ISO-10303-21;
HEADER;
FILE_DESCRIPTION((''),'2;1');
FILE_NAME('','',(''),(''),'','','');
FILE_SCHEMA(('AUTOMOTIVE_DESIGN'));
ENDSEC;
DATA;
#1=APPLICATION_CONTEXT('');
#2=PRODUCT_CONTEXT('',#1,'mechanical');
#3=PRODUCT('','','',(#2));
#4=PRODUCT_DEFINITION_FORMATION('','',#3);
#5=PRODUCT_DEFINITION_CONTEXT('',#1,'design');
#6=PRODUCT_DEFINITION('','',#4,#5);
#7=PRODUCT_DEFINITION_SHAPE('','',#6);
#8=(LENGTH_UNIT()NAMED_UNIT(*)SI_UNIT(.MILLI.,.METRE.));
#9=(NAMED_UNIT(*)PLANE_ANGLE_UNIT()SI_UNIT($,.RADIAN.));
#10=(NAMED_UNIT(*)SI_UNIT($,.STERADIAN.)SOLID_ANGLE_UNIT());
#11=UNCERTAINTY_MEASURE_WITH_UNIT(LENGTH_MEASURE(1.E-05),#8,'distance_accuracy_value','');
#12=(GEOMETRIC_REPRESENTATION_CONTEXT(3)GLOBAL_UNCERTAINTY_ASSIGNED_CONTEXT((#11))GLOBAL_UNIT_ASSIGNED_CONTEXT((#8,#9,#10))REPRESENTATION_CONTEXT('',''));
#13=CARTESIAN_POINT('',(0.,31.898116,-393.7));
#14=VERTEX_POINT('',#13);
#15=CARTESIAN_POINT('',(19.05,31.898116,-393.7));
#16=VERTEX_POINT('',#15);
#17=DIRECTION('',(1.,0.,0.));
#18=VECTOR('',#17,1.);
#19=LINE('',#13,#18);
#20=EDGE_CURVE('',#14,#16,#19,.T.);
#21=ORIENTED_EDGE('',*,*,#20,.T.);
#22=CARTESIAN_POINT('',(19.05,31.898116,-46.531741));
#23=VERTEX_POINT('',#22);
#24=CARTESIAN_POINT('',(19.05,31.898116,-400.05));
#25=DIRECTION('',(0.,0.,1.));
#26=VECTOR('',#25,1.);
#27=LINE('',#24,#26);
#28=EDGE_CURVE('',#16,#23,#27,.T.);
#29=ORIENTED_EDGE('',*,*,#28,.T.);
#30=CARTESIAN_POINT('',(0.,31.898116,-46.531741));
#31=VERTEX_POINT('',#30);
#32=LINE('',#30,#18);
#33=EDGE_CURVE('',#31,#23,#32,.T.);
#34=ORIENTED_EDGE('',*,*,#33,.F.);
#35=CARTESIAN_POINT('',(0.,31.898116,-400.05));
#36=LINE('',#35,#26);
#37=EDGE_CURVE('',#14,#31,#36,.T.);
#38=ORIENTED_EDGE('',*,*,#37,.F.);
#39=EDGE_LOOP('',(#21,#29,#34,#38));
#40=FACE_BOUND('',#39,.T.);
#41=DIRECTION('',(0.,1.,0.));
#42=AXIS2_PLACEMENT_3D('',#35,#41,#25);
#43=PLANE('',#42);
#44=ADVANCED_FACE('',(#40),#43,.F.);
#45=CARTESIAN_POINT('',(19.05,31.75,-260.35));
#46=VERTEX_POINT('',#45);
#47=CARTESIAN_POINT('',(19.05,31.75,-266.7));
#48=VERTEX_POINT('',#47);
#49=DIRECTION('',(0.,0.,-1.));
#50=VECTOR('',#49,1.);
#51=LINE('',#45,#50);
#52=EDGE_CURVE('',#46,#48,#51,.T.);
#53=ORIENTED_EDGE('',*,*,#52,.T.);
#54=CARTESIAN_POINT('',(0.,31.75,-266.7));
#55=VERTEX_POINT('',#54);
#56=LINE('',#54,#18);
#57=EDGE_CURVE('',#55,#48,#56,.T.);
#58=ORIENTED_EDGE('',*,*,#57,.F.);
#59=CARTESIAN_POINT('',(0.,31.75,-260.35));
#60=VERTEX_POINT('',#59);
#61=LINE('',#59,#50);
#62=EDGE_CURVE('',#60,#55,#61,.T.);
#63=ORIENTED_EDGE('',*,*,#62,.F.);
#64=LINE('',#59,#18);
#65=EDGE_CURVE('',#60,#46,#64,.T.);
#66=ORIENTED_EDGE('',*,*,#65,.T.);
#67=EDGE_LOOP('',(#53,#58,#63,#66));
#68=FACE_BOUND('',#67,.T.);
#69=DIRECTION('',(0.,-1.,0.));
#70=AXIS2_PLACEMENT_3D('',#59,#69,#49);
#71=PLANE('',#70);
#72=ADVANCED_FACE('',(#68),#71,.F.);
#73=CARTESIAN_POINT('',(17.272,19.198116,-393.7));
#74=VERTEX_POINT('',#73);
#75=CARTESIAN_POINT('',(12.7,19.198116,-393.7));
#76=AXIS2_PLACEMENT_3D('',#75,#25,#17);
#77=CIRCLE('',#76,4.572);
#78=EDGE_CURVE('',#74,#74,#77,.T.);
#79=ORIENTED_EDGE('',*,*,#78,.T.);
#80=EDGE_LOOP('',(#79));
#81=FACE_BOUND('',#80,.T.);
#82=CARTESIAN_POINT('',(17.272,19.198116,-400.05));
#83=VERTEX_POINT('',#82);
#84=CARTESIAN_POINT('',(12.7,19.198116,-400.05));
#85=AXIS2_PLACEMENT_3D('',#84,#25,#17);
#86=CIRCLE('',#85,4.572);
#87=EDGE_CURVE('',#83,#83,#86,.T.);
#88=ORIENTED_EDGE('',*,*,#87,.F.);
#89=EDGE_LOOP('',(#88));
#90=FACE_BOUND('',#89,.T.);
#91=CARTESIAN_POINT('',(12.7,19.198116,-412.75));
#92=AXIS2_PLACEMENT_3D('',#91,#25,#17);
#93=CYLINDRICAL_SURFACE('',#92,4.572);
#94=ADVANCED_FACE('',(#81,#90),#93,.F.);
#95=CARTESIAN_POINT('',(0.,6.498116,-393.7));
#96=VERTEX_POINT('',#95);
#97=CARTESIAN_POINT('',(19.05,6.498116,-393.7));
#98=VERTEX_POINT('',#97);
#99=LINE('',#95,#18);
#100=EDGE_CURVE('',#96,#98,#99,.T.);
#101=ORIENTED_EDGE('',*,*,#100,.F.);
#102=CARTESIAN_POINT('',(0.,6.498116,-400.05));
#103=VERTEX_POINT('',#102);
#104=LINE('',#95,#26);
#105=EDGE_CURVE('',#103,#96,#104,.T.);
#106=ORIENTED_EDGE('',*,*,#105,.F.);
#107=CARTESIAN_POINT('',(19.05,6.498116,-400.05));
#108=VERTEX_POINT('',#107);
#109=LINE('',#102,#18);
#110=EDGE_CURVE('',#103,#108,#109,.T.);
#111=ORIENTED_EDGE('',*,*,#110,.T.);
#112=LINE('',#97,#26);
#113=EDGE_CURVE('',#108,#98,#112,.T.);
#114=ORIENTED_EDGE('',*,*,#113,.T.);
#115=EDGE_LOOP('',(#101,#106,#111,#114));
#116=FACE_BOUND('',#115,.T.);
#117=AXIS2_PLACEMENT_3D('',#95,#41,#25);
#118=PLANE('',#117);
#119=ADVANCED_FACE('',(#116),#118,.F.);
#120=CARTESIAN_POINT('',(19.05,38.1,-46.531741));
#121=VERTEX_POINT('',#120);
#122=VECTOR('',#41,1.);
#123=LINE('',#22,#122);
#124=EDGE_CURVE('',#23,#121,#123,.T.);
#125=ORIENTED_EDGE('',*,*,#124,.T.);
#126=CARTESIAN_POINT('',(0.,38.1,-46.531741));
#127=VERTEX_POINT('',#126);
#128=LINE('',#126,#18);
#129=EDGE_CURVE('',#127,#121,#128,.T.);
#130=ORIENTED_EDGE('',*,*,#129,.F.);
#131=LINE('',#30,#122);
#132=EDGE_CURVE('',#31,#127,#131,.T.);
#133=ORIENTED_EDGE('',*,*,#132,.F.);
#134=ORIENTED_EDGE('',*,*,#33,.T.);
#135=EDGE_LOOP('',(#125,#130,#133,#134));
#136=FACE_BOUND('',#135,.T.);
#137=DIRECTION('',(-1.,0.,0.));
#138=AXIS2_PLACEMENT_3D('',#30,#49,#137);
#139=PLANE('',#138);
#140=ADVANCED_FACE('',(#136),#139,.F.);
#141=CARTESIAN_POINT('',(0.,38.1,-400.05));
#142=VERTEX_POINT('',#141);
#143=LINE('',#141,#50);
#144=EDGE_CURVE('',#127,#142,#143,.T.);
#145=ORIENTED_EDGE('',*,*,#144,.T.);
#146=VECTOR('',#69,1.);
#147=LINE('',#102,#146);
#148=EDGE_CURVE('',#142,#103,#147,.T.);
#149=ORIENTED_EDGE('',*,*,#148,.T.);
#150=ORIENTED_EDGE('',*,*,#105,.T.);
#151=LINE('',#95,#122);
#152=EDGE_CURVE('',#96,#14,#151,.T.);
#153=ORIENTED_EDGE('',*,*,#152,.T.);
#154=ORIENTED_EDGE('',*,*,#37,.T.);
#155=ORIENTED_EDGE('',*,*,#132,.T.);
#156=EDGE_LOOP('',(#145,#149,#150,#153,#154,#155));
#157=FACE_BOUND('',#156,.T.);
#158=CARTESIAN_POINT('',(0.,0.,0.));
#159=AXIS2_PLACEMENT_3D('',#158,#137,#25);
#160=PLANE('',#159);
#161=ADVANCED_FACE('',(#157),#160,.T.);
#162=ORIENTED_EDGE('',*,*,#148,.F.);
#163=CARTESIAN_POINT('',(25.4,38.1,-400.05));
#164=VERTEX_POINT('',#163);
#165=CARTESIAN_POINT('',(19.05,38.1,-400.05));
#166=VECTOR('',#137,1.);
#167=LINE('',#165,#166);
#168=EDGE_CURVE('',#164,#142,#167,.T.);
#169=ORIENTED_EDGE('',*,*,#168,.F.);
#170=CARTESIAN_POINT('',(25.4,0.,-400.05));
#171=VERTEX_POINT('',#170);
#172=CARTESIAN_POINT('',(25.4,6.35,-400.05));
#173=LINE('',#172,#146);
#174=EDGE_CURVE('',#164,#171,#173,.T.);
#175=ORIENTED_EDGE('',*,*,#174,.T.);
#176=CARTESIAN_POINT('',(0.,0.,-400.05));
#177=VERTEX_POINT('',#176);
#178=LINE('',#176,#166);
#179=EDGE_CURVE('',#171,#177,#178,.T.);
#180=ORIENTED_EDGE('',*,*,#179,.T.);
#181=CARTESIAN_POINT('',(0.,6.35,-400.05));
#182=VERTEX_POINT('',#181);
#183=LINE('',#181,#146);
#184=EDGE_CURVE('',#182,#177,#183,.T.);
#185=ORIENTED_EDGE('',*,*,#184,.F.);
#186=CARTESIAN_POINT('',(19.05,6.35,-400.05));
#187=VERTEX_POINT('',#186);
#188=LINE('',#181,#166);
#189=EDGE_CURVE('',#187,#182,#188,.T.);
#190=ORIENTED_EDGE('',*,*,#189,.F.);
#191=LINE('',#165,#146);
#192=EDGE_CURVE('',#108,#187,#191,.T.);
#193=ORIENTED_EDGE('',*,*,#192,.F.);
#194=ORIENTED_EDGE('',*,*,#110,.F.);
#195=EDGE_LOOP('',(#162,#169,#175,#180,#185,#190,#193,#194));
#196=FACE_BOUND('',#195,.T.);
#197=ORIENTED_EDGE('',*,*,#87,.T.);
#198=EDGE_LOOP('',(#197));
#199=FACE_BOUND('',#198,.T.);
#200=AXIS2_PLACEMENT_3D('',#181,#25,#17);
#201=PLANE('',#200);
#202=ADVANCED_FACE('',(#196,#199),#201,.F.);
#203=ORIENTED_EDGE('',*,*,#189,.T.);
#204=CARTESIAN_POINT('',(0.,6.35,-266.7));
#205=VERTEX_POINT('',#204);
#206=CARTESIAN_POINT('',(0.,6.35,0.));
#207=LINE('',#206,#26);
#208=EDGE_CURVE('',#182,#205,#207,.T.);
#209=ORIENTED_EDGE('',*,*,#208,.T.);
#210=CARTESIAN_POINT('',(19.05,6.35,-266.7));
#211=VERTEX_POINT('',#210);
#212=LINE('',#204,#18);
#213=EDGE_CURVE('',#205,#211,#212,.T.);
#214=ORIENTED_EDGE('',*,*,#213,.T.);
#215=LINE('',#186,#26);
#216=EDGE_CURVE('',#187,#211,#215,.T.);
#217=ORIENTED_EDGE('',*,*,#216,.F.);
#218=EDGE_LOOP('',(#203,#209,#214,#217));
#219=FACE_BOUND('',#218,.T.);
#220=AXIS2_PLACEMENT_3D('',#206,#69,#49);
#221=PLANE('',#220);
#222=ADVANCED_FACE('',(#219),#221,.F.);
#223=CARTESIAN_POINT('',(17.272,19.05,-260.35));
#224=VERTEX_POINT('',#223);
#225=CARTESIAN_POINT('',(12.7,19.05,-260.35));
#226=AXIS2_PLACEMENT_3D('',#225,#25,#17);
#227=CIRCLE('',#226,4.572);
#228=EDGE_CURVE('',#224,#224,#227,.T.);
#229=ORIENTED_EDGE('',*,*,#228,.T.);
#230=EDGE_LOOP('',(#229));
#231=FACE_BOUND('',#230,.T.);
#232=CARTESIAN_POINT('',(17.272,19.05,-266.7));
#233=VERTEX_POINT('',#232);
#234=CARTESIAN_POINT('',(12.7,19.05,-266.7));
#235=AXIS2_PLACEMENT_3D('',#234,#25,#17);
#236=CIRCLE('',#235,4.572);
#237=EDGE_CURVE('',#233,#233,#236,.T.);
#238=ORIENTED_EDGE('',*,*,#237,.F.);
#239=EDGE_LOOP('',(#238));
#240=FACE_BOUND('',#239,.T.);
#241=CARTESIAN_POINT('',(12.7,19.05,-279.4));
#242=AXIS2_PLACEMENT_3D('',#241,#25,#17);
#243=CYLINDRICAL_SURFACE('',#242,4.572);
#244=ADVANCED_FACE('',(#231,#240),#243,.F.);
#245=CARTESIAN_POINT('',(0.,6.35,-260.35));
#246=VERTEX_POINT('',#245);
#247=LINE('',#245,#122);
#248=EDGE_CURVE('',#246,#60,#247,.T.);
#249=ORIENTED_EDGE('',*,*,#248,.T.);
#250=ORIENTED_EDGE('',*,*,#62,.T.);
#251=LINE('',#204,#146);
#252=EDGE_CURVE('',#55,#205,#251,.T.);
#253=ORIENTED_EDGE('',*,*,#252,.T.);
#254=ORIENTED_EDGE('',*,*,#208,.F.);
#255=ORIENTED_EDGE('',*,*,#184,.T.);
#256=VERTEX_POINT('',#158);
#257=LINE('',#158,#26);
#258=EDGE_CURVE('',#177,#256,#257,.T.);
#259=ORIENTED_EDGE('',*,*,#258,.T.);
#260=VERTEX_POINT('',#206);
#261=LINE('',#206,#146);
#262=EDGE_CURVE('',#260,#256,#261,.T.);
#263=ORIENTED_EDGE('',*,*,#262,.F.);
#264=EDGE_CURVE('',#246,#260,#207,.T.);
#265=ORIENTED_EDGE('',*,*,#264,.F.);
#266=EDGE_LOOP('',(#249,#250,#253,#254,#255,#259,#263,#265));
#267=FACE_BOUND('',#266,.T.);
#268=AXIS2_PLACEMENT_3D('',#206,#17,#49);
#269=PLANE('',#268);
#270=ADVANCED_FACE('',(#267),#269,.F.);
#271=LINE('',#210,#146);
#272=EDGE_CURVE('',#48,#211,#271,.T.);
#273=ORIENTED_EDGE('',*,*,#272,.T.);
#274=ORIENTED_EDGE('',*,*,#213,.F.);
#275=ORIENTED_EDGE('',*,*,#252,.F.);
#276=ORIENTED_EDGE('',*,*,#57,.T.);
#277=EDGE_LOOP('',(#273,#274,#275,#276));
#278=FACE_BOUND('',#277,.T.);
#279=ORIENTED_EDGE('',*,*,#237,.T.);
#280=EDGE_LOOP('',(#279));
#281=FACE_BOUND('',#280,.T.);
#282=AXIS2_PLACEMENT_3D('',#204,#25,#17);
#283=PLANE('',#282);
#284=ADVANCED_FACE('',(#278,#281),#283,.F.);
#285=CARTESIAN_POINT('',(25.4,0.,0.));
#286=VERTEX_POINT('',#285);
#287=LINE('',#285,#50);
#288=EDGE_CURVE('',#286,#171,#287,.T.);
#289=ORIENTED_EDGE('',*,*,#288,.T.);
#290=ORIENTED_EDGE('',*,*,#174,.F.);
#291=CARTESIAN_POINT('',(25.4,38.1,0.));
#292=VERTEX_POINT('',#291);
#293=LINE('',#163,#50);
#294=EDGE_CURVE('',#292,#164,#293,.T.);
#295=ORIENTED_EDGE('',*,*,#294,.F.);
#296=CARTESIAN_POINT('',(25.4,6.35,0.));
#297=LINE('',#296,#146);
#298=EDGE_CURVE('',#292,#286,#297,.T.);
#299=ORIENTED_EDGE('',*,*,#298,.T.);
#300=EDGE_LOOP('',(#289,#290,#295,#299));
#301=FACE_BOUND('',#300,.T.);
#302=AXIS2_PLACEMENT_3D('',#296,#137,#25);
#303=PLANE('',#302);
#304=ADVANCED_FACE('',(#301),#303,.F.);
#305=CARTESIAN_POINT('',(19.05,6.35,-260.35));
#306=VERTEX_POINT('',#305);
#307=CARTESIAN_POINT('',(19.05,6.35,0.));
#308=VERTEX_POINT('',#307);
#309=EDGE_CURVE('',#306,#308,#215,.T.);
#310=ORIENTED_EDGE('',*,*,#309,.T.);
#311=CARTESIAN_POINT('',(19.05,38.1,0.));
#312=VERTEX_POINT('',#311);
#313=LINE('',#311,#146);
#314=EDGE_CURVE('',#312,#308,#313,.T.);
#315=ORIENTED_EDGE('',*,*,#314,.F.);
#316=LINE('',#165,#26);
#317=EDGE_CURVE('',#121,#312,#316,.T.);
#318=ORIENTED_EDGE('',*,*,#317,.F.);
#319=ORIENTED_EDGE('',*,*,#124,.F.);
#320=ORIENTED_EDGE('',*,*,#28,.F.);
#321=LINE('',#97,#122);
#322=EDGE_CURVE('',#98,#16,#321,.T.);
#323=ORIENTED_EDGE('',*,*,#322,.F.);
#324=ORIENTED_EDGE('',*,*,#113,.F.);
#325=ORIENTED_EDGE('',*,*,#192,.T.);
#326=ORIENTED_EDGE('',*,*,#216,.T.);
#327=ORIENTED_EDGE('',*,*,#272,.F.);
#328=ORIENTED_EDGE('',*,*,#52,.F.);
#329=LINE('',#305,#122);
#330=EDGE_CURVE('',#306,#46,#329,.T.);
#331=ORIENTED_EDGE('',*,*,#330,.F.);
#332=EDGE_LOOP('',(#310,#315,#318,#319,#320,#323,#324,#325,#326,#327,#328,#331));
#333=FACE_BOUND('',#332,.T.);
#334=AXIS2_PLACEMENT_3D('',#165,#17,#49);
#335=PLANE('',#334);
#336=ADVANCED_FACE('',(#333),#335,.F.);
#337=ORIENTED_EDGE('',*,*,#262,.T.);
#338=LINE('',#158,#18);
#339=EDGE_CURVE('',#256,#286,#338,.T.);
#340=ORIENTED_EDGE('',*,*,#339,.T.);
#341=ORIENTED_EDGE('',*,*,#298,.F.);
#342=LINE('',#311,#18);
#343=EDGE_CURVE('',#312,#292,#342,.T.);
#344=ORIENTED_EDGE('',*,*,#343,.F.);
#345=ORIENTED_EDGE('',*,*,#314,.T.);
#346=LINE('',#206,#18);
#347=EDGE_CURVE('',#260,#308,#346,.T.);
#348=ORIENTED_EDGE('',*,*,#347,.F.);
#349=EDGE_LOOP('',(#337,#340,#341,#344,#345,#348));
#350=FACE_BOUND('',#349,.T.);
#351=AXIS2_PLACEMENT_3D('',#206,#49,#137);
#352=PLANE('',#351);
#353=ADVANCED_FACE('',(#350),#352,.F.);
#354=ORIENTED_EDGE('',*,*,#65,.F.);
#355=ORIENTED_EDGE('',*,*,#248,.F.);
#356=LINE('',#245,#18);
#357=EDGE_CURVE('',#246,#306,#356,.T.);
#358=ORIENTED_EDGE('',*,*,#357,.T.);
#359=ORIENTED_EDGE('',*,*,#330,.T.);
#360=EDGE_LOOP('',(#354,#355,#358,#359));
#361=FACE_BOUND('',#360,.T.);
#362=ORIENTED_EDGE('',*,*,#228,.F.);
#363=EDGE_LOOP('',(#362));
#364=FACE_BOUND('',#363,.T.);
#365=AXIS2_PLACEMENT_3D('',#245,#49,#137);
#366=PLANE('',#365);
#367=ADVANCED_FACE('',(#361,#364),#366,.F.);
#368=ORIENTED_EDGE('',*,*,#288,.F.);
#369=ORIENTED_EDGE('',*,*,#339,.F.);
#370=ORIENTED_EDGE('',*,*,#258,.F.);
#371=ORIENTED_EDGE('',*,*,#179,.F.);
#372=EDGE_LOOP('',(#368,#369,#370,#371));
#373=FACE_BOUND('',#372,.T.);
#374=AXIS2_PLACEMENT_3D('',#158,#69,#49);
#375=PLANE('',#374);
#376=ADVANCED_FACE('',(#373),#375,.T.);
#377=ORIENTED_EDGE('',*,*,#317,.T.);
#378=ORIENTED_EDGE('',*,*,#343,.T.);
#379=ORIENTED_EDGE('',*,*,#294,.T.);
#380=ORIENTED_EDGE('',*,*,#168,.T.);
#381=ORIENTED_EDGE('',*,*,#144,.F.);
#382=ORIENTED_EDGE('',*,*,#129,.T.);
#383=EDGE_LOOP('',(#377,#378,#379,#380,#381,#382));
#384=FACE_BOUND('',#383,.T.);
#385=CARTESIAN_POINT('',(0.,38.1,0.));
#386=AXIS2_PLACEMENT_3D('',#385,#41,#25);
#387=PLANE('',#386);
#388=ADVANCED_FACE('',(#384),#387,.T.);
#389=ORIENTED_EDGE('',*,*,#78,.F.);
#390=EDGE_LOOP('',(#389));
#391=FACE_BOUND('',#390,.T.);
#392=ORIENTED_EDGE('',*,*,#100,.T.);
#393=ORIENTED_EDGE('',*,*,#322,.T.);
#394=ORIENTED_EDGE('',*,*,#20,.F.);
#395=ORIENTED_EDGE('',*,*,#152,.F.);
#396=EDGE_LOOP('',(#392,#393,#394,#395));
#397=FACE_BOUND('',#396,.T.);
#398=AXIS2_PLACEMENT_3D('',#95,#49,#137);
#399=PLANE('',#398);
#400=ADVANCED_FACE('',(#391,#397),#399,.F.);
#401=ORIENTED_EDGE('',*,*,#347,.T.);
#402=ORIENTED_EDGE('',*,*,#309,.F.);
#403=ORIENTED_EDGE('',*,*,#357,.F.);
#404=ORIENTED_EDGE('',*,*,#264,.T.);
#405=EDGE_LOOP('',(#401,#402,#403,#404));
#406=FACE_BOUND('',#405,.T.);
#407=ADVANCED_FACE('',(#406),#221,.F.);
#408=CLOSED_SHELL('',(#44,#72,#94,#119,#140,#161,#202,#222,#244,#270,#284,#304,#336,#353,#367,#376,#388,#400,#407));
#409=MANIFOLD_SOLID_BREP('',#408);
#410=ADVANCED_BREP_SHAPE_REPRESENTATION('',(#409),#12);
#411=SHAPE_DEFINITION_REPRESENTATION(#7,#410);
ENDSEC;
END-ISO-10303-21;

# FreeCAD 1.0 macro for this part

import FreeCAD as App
import Part
import Sketcher
from FreeCAD import Vector
Q = App.Units.Quantity

doc = App.newDocument("Part")
body = doc.addObject("PartDesign::Body", "Body")

sketch1 = body.newObject("Sketcher::SketchObject", "Sketch")
sketch1.AttachmentSupport = (doc.getObject("XZ_Plane"), [""])
sketch1.MapMode = "FlatFace"
sketch1.addGeometry([
    Part.LineSegment(Vector(0, -400, 0), Vector(0, 0, 0)),
    Part.LineSegment(Vector(0, 0, 0), Vector(25, 0, 0)),
    Part.LineSegment(Vector(25, 0, 0), Vector(25, -400, 0)),
    Part.LineSegment(Vector(25, -400, 0), Vector(0, -400, 0)),
], False)
sketch1.addConstraint([
    Sketcher.Constraint("Coincident", 0, 2, 1, 1),
    Sketcher.Constraint("Coincident", 1, 2, 2, 1),
    Sketcher.Constraint("Coincident", 2, 2, 3, 1),
    Sketcher.Constraint("Coincident", 3, 2, 0, 1),
    Sketcher.Constraint("Vertical", 0),
    Sketcher.Constraint("Horizontal", 1),
    Sketcher.Constraint("Vertical", 2),
    Sketcher.Constraint("Horizontal", 3),
    Sketcher.Constraint("Coincident", 0, 2, -1, 1),
    Sketcher.Constraint("DistanceX", 1, 1, 1, 2, Q("1 in")),
    Sketcher.Constraint("DistanceY", 0, 1, 0, 2, Q("15.75 in")),
])
pad1 = body.newObject("PartDesign::Pad", "Pad")
pad1.Profile = sketch1
pad1.Length = Q("0.25 in")
pad1.Reversed = True

sketch2 = body.newObject("Sketcher::SketchObject", "Sketch001")
sketch2.AttachmentSupport = (doc.getObject("XZ_Plane"), [""])
sketch2.MapMode = "FlatFace"
sketch2.AttachmentOffset = App.Placement(Vector(0, 0, -0.25 * 25.4), App.Rotation())
sketch2.addGeometry([
    Part.LineSegment(Vector(19, -400, 0), Vector(19, 0, 0)),
    Part.LineSegment(Vector(19, 0, 0), Vector(25, 0, 0)),
    Part.LineSegment(Vector(25, 0, 0), Vector(25, -400, 0)),
    Part.LineSegment(Vector(25, -400, 0), Vector(19, -400, 0)),
], False)
sketch2.addConstraint([
    Sketcher.Constraint("Coincident", 0, 2, 1, 1),
    Sketcher.Constraint("Coincident", 1, 2, 2, 1),
    Sketcher.Constraint("Coincident", 2, 2, 3, 1),
    Sketcher.Constraint("Coincident", 3, 2, 0, 1),
    Sketcher.Constraint("Vertical", 0),
    Sketcher.Constraint("Horizontal", 1),
    Sketcher.Constraint("Vertical", 2),
    Sketcher.Constraint("Horizontal", 3),
    Sketcher.Constraint("PointOnObject", 0, 2, -1),
    Sketcher.Constraint("DistanceX", -1, 1, 1, 2, Q("1 in")),
    Sketcher.Constraint("DistanceX", 1, 1, 1, 2, Q("0.25 in")),
    Sketcher.Constraint("DistanceY", 0, 1, 0, 2, Q("15.75 in")),
])
pad2 = body.newObject("PartDesign::Pad", "Pad001")
pad2.Profile = sketch2
pad2.Length = Q("1.25 in")
pad2.Reversed = True

sketch3 = body.newObject("Sketcher::SketchObject", "Sketch002")
sketch3.AttachmentSupport = (doc.getObject("YZ_Plane"), [""])
sketch3.MapMode = "FlatFace"
sketch3.AttachmentOffset = App.Placement(Vector(0, 0, 0.75 * 25.4), App.Rotation())
sketch3.addGeometry([
    Part.LineSegment(Vector(32, -400, 0), Vector(6, -400, 0)),
    Part.LineSegment(Vector(6, -400, 0), Vector(6, -394, 0)),
    Part.LineSegment(Vector(6, -394, 0), Vector(32, -394, 0)),
    Part.LineSegment(Vector(32, -394, 0), Vector(32, -400, 0)),
], False)
sketch3.addConstraint([
    Sketcher.Constraint("Coincident", 0, 2, 1, 1),
    Sketcher.Constraint("Coincident", 1, 2, 2, 1),
    Sketcher.Constraint("Coincident", 2, 2, 3, 1),
    Sketcher.Constraint("Coincident", 3, 2, 0, 1),
    Sketcher.Constraint("Horizontal", 0),
    Sketcher.Constraint("Vertical", 1),
    Sketcher.Constraint("Horizontal", 2),
    Sketcher.Constraint("Vertical", 3),
    Sketcher.Constraint("DistanceX", 0, 2, 0, 1, Q("1 in")),
    Sketcher.Constraint("DistanceY", 1, 1, 1, 2, Q("0.25 in")),
    Sketcher.Constraint("DistanceY", 1, 2, -1, 1, Q("15.5 in")),
    Sketcher.Constraint("DistanceX", -1, 1, 0, 2, 6.498116),
])
pad3 = body.newObject("PartDesign::Pad", "Pad002")
pad3.Profile = sketch3
pad3.Length = Q("0.75 in")
pad3.Reversed = True

sketch4 = body.newObject("Sketcher::SketchObject", "Sketch003")
sketch4.AttachmentSupport = (doc.getObject("XY_Plane"), [""])
sketch4.MapMode = "FlatFace"
sketch4.AttachmentOffset = App.Placement(Vector(0, 0, -15.5 * 25.4), App.Rotation())
sketch4.addGeometry(Part.Circle(Vector(12.7, 19.2, 0), Vector(0, 0, 1), 4.6), False)
sketch4.addConstraint([
    Sketcher.Constraint("Diameter", 0, Q("0.36 in")),
    Sketcher.Constraint("DistanceX", -1, 1, 0, 3, Q("0.5 in")),
    Sketcher.Constraint("DistanceY", -1, 1, 0, 3, 19.198116),
])
pocket1 = body.newObject("PartDesign::Pocket", "Pocket")
pocket1.Profile = sketch4
pocket1.Length = Q("0.75 in")

sketch5 = body.newObject("Sketcher::SketchObject", "Sketch004")
sketch5.AttachmentSupport = (doc.getObject("YZ_Plane"), [""])
sketch5.MapMode = "FlatFace"
sketch5.AttachmentOffset = App.Placement(Vector(0, 0, 0.75 * 25.4), App.Rotation())
sketch5.addGeometry([
    Part.LineSegment(Vector(32, -267, 0), Vector(6, -267, 0)),
    Part.LineSegment(Vector(6, -267, 0), Vector(6, -260, 0)),
    Part.LineSegment(Vector(6, -260, 0), Vector(32, -260, 0)),
    Part.LineSegment(Vector(32, -260, 0), Vector(32, -267, 0)),
], False)
sketch5.addConstraint([
    Sketcher.Constraint("Coincident", 0, 2, 1, 1),
    Sketcher.Constraint("Coincident", 1, 2, 2, 1),
    Sketcher.Constraint("Coincident", 2, 2, 3, 1),
    Sketcher.Constraint("Coincident", 3, 2, 0, 1),
    Sketcher.Constraint("Horizontal", 0),
    Sketcher.Constraint("Vertical", 1),
    Sketcher.Constraint("Horizontal", 2),
    Sketcher.Constraint("Vertical", 3),
    Sketcher.Constraint("DistanceX", 0, 2, 0, 1, Q("1 in")),
    Sketcher.Constraint("DistanceY", 1, 1, 1, 2, Q("0.25 in")),
    Sketcher.Constraint("DistanceY", 0, 2, -1, 1, Q("10.5 in")),
    Sketcher.Constraint("DistanceX", -1, 1, 0, 2, Q("0.25 in")),
])
pad4 = body.newObject("PartDesign::Pad", "Pad003")
pad4.Profile = sketch5
pad4.Length = Q("0.75 in")
pad4.Reversed = True

sketch6 = body.newObject("Sketcher::SketchObject", "Sketch005")
sketch6.AttachmentSupport = (doc.getObject("XY_Plane"), [""])
sketch6.MapMode = "FlatFace"
sketch6.AttachmentOffset = App.Placement(Vector(0, 0, -10.25 * 25.4), App.Rotation())
sketch6.addGeometry(Part.Circle(Vector(12.7, 19.1, 0), Vector(0, 0, 1), 4.6), False)
sketch6.addConstraint([
    Sketcher.Constraint("Diameter", 0, Q("0.36 in")),
    Sketcher.Constraint("DistanceX", -1, 1, 0, 3, Q("0.5 in")),
    Sketcher.Constraint("DistanceY", -1, 1, 0, 3, Q("0.75 in")),
])
pocket2 = body.newObject("PartDesign::Pocket", "Pocket001")
pocket2.Profile = sketch6
pocket2.Length = Q("0.75 in")

sketch7 = body.newObject("Sketcher::SketchObject", "Sketch006")
sketch7.AttachmentSupport = (doc.getObject("YZ_Plane"), [""])
sketch7.MapMode = "FlatFace"
sketch7.AttachmentOffset = App.Placement(Vector(0, 0, 0.75 * 25.4), App.Rotation())
sketch7.addGeometry([
    Part.LineSegment(Vector(38, -400, 0), Vector(32, -400, 0)),
    Part.LineSegment(Vector(32, -400, 0), Vector(32, -47, 0)),
    Part.LineSegment(Vector(32, -47, 0), Vector(38, -47, 0)),
    Part.LineSegment(Vector(38, -47, 0), Vector(38, -400, 0)),
], False)
sketch7.addConstraint([
    Sketcher.Constraint("Coincident", 0, 2, 1, 1),
    Sketcher.Constraint("Coincident", 1, 2, 2, 1),
    Sketcher.Constraint("Coincident", 2, 2, 3, 1),
    Sketcher.Constraint("Coincident", 3, 2, 0, 1),
    Sketcher.Constraint("Horizontal", 0),
    Sketcher.Constraint("Vertical", 1),
    Sketcher.Constraint("Horizontal", 2),
    Sketcher.Constraint("Vertical", 3),
    Sketcher.Constraint("DistanceX", -1, 1, 2, 2, Q("1.5 in")),
    Sketcher.Constraint("DistanceY", 0, 2, -1, 1, Q("15.75 in")),
    Sketcher.Constraint("DistanceY", 1, 1, 1, 2, 353.518259),
    Sketcher.Constraint("DistanceX", 0, 2, 0, 1, 6.201884),
])
pad5 = body.newObject("PartDesign::Pad", "Pad004")
pad5.Profile = sketch7
pad5.Length = Q("0.75 in")
pad5.Reversed = True

doc.recompute()
